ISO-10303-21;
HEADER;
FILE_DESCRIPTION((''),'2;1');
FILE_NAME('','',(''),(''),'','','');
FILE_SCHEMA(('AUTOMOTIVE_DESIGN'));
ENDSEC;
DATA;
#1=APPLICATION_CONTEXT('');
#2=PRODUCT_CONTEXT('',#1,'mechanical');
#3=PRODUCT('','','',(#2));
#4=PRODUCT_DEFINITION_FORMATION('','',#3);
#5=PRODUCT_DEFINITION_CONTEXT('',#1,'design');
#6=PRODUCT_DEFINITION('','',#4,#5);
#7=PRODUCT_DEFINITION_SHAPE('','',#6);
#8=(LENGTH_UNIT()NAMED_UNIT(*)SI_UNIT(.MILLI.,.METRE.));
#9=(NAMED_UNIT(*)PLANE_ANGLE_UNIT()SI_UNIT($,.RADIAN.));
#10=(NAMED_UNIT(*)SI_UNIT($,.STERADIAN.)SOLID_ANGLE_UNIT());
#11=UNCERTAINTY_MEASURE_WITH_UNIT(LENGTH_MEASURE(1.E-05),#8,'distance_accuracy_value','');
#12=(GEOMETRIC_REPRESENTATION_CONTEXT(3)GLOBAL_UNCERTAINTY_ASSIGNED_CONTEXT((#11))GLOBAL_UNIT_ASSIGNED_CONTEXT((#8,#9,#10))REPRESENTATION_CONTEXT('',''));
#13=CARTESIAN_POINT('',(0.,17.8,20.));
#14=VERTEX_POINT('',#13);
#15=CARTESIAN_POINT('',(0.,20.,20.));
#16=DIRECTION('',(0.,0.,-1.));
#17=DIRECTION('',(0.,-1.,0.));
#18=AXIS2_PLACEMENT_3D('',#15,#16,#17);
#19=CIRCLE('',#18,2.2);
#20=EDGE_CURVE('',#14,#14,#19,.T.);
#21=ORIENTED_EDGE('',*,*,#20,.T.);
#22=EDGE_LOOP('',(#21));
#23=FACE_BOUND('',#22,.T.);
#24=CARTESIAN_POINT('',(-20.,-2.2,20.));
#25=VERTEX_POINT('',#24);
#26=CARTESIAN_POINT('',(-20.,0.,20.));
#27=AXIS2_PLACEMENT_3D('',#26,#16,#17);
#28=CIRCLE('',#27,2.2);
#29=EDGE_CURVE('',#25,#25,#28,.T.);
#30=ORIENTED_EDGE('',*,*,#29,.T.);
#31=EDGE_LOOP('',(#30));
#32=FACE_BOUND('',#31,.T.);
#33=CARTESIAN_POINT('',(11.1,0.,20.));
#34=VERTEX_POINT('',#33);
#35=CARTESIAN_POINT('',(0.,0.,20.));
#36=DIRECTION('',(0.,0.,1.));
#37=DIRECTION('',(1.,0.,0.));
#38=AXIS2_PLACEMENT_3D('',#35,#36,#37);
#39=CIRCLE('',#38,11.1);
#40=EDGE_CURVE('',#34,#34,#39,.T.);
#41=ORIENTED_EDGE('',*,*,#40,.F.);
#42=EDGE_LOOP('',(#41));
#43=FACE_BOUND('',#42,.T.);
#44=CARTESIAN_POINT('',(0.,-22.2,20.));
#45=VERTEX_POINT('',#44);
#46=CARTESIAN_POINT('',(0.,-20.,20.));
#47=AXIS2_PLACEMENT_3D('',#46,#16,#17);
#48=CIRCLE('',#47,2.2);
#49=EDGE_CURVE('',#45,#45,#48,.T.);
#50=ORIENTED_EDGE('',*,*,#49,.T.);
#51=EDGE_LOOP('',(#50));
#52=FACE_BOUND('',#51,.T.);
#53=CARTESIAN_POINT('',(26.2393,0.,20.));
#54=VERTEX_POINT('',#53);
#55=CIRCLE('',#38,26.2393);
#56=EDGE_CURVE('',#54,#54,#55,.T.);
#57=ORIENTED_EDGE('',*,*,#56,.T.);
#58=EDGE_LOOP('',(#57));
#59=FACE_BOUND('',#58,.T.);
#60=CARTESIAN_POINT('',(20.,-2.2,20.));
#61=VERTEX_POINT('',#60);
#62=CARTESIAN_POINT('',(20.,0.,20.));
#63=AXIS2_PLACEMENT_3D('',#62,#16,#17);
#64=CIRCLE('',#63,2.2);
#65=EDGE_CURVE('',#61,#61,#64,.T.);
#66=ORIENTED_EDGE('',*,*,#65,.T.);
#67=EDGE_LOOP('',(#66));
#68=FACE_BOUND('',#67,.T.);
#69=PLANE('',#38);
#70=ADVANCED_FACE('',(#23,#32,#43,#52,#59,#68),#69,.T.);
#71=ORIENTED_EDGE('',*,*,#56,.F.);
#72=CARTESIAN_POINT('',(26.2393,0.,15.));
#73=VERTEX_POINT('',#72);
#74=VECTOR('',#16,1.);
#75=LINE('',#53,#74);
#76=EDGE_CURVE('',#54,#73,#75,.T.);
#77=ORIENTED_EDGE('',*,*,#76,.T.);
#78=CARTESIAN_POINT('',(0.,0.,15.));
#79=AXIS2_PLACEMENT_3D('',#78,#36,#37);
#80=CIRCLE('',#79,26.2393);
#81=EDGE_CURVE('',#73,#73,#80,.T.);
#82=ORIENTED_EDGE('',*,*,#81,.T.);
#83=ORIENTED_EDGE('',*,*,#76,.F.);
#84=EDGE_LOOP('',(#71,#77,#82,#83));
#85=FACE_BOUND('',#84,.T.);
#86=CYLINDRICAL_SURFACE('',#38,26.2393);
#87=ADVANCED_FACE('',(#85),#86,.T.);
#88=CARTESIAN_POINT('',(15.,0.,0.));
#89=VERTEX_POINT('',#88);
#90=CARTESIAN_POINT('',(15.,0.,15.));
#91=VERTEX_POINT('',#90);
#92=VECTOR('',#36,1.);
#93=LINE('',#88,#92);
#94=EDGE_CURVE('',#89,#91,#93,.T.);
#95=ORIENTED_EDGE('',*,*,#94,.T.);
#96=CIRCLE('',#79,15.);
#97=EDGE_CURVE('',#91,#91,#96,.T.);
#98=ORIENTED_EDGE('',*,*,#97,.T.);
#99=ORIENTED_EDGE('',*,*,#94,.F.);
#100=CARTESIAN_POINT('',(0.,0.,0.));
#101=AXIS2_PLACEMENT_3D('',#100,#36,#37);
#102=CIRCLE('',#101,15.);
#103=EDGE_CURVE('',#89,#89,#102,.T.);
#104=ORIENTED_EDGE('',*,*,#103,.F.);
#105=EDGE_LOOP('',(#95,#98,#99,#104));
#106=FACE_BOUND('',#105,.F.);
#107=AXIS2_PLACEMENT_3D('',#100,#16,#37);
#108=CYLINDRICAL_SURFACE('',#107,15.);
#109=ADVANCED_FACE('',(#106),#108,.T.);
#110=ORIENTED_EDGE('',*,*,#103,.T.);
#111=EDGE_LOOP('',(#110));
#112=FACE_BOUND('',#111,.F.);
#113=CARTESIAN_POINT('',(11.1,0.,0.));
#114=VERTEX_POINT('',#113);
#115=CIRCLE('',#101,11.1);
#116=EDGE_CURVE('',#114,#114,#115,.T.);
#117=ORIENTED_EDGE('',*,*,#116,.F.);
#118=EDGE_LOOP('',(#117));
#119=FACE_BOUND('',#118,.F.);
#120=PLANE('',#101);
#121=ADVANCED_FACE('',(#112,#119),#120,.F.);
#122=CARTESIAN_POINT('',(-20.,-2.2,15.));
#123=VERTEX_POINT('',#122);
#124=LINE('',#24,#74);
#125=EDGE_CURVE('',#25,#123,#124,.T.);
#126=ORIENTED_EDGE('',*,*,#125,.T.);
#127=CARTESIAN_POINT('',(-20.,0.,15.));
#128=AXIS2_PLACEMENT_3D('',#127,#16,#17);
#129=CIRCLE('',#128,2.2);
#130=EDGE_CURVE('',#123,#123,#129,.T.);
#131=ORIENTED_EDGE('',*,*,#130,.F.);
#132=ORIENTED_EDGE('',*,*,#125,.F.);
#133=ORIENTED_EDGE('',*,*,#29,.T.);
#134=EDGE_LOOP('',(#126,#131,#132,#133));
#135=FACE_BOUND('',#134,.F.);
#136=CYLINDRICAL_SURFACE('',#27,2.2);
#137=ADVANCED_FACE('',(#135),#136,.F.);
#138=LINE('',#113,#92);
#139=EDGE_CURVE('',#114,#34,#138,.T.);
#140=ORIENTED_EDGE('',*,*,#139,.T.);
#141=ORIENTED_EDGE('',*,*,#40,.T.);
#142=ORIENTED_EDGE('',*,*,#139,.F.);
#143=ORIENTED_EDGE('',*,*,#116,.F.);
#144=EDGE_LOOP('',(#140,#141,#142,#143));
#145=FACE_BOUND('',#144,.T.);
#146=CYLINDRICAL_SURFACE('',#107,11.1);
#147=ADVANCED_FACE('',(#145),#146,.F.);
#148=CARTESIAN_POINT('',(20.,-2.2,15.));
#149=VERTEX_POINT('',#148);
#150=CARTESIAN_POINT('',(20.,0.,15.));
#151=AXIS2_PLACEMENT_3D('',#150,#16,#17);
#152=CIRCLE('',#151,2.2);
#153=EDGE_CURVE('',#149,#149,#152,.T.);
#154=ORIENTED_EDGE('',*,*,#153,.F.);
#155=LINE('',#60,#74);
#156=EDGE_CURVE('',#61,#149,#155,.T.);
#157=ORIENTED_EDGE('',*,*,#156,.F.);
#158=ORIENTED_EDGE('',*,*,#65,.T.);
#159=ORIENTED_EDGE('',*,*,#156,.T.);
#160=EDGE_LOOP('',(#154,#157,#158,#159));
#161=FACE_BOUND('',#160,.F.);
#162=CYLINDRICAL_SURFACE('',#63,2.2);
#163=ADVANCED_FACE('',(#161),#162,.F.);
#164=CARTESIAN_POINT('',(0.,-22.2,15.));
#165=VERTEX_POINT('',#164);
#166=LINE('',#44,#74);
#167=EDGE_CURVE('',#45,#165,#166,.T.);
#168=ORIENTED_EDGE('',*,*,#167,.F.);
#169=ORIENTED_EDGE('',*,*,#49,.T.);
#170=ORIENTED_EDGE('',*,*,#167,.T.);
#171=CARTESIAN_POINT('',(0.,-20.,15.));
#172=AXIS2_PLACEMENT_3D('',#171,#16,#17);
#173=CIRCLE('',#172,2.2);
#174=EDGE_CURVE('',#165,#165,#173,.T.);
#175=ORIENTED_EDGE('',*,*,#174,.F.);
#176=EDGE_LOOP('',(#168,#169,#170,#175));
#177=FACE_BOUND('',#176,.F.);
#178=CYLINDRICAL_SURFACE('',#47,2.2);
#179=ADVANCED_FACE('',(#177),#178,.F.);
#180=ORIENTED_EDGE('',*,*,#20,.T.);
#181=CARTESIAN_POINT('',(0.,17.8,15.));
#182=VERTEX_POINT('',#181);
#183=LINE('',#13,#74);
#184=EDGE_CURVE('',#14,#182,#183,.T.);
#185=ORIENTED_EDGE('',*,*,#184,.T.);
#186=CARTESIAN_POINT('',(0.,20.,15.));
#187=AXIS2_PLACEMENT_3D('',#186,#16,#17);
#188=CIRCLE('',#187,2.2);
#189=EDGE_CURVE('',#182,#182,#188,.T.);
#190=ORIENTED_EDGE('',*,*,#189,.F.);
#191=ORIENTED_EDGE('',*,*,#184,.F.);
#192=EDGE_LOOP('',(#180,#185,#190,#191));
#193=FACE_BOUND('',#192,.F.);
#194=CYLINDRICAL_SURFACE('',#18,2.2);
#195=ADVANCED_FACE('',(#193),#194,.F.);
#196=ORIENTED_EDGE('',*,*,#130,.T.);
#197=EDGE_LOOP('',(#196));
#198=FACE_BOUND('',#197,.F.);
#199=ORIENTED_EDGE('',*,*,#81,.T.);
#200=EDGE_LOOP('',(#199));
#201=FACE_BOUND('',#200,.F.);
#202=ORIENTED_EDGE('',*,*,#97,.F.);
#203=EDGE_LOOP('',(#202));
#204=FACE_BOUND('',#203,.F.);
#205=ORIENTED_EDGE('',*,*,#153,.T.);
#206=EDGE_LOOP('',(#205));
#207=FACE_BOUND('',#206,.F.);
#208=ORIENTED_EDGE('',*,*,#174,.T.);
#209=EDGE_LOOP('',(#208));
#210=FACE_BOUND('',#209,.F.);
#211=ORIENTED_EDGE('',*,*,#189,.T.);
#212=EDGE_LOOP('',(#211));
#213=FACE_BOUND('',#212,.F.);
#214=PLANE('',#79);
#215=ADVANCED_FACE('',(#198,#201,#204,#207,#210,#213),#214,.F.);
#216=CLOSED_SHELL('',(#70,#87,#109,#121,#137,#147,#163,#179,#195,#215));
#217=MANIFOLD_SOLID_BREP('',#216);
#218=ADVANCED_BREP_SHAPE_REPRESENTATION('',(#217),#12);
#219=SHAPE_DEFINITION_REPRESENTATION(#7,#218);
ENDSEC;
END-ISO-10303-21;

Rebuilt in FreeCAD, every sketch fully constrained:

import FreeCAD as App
import Part
import Sketcher

V = App.Vector

doc = App.newDocument("Part")
body = doc.addObject("PartDesign::Body", "Body")

sketch1 = body.newObject("Sketcher::SketchObject", "Sketch")
sketch1.AttachmentSupport = (doc.getObject("XY_Plane"), [""])
sketch1.MapMode = "FlatFace"
sketch1.addGeometry([
    Part.Circle(V(0, 0, 0), V(0, 0, 1), 15),
    Part.Circle(V(0, 0, 0), V(0, 0, 1), 11),
], False)
sketch1.addConstraint([
    Sketcher.Constraint("Coincident", 0, 3, -1, 1),
    Sketcher.Constraint("Coincident", 1, 3, -1, 1),
    Sketcher.Constraint("Diameter", 0, 30.0),
    Sketcher.Constraint("Diameter", 1, 22.2),
])
pad1 = body.newObject("PartDesign::Pad", "Pad")
pad1.Profile = sketch1
pad1.Length = 20

sketch2 = body.newObject("Sketcher::SketchObject", "Sketch001")
sketch2.AttachmentSupport = (doc.getObject("XY_Plane"), [""])
sketch2.MapMode = "FlatFace"
sketch2.AttachmentOffset = App.Placement(V(0, 0, 20), App.Rotation())
sketch2.addGeometry([
    Part.Circle(V(0, 0, 0), V(0, 0, 1), 26),
    Part.Circle(V(0, 0, 0), V(0, 0, 1), 15),
], False)
sketch2.addConstraint([
    Sketcher.Constraint("Coincident", 0, 3, -1, 1),
    Sketcher.Constraint("Coincident", 1, 3, -1, 1),
    Sketcher.Constraint("Diameter", 1, 30.0),
    Sketcher.Constraint("Diameter", 0, 52.4786),
])
pad2 = body.newObject("PartDesign::Pad", "Pad001")
pad2.Profile = sketch2
pad2.Length = 5
pad2.Reversed = True

sketch3 = body.newObject("Sketcher::SketchObject", "Sketch002")
sketch3.AttachmentSupport = (doc.getObject("XY_Plane"), [""])
sketch3.MapMode = "FlatFace"
sketch3.AttachmentOffset = App.Placement(V(0, 0, 20), App.Rotation())
sketch3.addGeometry([
    Part.Circle(V(0, 20, 0), V(0, 0, 1), 2.2),
    Part.Circle(V(-20, 0, 0), V(0, 0, 1), 2.2),
    Part.Circle(V(0, -20, 0), V(0, 0, 1), 2.2),
    Part.Circle(V(20, 0, 0), V(0, 0, 1), 2.2),
], False)
sketch3.addConstraint([
    Sketcher.Constraint("Equal", 0, 1),
    Sketcher.Constraint("Equal", 1, 2),
    Sketcher.Constraint("Equal", 2, 3),
    Sketcher.Constraint("Symmetric", 0, 3, 2, 3, -1, 1),
    Sketcher.Constraint("Symmetric", 1, 3, 3, 3, -1, 1),
    Sketcher.Constraint("PointOnObject", 0, 3, -2),
    Sketcher.Constraint("PointOnObject", 1, 3, -1),
    Sketcher.Constraint("Diameter", 0, 4.4),
    Sketcher.Constraint("DistanceY", -1, 1, 0, 3, 20.0),
    Sketcher.Constraint("DistanceX", 1, 3, -1, 1, 20.0),
])
doc.recompute()
hole = body.newObject("PartDesign::Hole", "Hole")
hole.Profile = sketch3
hole.ThreadType = "None"
hole.Diameter = 4.4
hole.DepthType = "ThroughAll"

doc.recompute()
